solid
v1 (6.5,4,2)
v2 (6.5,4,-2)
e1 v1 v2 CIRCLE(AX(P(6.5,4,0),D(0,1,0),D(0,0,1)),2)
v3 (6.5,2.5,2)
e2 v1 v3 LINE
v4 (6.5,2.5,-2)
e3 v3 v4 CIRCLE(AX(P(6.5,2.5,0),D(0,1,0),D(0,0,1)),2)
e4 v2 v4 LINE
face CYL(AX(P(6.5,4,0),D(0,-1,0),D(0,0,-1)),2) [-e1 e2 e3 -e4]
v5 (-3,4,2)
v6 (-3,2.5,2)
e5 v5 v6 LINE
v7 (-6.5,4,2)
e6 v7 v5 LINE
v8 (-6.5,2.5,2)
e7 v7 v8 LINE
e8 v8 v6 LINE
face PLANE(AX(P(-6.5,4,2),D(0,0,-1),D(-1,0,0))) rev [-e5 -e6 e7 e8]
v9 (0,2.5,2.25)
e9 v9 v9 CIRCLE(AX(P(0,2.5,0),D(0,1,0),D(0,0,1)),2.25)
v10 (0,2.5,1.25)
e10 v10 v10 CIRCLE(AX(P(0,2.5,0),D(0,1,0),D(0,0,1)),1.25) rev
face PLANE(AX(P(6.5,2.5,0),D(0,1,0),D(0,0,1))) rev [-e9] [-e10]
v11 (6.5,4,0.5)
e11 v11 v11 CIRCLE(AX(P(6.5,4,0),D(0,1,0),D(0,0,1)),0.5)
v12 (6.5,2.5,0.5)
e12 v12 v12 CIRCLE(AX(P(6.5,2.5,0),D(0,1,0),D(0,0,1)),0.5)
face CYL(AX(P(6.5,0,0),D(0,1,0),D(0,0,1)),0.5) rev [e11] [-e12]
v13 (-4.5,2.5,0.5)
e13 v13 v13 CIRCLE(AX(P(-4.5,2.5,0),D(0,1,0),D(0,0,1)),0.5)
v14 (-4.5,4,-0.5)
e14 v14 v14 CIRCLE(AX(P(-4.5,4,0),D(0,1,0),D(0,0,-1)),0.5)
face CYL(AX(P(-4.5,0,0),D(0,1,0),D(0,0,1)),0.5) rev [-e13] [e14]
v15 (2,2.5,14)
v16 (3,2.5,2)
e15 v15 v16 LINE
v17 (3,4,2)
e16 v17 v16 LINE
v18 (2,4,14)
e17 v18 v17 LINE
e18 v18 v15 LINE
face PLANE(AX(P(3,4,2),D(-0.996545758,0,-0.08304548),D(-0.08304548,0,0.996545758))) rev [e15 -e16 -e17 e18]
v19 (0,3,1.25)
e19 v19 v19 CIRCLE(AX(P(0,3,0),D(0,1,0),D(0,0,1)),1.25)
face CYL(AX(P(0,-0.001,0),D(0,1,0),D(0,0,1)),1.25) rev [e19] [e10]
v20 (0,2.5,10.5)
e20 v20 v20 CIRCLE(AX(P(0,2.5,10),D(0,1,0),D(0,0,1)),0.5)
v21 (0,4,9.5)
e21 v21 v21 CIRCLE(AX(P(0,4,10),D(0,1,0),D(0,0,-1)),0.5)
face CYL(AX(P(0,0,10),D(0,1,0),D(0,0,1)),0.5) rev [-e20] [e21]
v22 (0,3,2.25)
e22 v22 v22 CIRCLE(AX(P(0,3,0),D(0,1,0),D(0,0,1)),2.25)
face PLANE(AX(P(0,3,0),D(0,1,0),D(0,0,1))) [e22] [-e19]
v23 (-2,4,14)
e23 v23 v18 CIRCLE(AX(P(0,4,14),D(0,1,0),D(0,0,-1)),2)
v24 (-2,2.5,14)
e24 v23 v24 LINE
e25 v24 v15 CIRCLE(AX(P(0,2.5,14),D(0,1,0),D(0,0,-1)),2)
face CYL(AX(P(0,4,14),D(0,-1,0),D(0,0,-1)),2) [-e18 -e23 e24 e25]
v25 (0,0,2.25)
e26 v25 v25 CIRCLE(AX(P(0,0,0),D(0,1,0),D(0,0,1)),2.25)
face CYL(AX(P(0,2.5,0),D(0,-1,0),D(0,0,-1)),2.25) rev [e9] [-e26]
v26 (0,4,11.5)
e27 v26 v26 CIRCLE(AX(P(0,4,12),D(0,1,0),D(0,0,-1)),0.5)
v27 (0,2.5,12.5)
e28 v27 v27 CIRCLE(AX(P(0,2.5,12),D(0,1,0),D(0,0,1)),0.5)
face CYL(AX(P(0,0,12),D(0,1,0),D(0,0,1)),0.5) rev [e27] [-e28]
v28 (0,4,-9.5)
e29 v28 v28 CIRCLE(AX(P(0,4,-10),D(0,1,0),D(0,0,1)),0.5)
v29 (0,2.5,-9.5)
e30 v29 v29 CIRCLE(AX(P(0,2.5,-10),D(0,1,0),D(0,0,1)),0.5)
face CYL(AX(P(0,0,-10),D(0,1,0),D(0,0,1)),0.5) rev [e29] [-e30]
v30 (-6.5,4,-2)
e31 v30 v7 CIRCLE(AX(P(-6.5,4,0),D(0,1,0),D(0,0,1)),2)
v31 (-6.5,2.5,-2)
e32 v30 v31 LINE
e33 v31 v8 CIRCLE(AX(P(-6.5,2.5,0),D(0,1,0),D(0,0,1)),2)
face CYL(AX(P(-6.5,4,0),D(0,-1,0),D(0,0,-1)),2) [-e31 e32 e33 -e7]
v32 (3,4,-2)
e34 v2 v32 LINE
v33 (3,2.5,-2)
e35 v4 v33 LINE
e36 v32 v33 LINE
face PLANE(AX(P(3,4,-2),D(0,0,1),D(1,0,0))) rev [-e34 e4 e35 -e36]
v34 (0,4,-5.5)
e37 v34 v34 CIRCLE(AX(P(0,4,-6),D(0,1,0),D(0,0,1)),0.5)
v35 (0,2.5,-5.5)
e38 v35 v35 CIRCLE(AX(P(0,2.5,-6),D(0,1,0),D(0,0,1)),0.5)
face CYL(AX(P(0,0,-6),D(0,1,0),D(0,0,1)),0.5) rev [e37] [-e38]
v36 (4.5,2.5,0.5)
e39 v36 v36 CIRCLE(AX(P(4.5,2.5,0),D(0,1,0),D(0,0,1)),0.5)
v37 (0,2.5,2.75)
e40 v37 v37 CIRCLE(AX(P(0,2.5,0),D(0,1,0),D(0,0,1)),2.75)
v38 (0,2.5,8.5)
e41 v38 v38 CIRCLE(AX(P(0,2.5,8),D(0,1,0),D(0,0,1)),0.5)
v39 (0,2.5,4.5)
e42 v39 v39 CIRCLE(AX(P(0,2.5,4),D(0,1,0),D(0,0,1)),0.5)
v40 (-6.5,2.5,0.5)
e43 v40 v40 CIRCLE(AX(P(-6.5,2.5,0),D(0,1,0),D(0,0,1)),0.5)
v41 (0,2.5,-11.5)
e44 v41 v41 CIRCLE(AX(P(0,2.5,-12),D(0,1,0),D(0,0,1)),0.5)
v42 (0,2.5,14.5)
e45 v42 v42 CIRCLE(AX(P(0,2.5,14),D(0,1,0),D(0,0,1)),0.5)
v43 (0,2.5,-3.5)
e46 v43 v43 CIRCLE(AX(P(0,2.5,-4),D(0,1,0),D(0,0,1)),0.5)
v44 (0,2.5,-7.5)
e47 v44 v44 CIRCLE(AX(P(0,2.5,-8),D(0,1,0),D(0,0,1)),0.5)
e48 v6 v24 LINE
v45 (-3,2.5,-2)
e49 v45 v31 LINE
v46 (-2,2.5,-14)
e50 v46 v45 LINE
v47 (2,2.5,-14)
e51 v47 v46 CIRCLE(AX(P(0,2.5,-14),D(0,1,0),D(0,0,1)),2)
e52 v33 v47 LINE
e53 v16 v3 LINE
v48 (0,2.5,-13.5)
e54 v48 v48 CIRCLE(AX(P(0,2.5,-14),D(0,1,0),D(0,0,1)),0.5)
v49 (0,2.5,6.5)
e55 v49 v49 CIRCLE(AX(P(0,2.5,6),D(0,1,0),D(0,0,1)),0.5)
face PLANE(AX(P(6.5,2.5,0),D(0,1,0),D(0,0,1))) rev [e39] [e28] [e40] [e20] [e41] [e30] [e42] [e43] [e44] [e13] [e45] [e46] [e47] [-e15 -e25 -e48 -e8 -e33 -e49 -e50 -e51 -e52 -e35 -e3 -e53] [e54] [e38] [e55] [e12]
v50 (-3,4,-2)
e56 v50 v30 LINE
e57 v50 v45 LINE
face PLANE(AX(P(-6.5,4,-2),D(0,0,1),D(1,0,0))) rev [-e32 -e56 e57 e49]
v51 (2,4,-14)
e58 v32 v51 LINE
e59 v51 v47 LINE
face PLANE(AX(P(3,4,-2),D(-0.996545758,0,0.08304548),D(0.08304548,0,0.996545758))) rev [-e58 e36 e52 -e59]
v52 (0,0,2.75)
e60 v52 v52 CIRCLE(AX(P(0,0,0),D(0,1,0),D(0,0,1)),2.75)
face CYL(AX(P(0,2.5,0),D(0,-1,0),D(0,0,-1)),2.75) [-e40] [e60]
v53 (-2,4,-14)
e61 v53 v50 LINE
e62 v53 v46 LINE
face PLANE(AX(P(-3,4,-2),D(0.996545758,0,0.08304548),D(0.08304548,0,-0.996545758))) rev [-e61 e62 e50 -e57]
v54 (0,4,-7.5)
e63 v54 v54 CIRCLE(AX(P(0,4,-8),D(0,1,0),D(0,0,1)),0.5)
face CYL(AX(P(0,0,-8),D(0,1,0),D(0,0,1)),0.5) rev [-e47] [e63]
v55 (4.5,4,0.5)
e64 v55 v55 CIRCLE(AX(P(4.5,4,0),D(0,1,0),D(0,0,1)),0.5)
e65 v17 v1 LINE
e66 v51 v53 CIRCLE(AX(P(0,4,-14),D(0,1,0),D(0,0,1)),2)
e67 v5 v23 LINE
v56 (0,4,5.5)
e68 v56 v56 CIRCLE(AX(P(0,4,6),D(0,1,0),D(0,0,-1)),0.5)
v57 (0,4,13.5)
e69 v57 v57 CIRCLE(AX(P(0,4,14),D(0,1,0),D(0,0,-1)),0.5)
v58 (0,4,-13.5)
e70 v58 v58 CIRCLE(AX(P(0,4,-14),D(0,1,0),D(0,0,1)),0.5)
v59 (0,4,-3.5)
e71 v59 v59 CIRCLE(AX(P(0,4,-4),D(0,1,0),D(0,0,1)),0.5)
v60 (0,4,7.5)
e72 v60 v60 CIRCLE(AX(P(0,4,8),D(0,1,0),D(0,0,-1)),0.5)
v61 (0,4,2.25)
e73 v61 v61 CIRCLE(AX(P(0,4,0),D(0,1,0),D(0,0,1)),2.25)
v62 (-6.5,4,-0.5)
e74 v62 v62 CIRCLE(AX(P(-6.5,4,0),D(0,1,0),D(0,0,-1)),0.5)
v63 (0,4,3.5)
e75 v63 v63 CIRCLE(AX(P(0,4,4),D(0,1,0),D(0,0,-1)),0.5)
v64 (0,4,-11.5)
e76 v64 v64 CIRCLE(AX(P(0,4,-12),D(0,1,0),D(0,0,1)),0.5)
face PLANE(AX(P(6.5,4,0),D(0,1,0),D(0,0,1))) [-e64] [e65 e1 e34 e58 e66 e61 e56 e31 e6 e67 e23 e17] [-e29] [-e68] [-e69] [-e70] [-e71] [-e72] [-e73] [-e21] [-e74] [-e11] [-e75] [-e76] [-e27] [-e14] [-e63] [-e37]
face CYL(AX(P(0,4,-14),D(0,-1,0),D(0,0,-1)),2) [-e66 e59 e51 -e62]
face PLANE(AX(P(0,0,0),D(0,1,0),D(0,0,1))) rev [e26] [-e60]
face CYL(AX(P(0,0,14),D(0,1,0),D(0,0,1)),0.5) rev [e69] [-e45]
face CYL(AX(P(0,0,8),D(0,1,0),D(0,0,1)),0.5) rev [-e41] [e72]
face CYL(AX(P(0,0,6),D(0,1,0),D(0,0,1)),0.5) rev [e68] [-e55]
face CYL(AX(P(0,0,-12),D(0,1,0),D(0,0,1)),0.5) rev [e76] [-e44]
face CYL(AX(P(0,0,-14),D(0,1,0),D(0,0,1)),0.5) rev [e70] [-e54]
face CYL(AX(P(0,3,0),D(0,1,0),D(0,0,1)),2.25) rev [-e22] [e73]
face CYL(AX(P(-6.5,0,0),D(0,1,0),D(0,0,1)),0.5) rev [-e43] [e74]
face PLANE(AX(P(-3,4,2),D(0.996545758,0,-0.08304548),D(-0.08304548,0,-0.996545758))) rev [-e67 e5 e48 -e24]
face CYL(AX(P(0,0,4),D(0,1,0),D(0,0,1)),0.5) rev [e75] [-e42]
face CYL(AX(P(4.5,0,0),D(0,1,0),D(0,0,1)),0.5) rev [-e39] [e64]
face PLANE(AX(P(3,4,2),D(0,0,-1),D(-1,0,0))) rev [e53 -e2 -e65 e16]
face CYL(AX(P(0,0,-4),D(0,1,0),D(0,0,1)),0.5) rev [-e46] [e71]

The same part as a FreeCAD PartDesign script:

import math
import FreeCAD as App
import Part
import Sketcher
from FreeCAD import Vector
Q = App.Units.Quantity

doc = App.newDocument("Part")
body = doc.addObject("PartDesign::Body", "Body")

# Sketch on XZ plane
sketch1 = doc.addObject("Sketcher::SketchObject", "Sketch")
body.addObject(sketch1)
sketch1.AttachmentSupport = (doc.XZ_Plane, [""])
sketch1.MapMode = "FlatFace"
sketch1.addGeometry(Part.Circle(Vector(0, 0, 0), Vector(0, 0, 1), 2.8), False)
sketch1.addGeometry(Part.Circle(Vector(0, 0, 0), Vector(0, 0, 1), 2.2), False)
sketch1.addConstraint(Sketcher.Constraint("Coincident", 0, 3, -1, 1))
sketch1.addConstraint(Sketcher.Constraint("Coincident", 1, 3, -1, 1))
sketch1.addConstraint(Sketcher.Constraint("Diameter", 0, Q("5.5 mm")))
sketch1.addConstraint(Sketcher.Constraint("Diameter", 1, Q("4.5 mm")))
pad1 = doc.addObject("PartDesign::Pad", "Pad")
body.addObject(pad1)
pad1.Profile = sketch1
pad1.Length = 2.5
pad1.Reversed = True

# Sketch on XZ plane
sketch2 = doc.addObject("Sketcher::SketchObject", "Sketch001")
body.addObject(sketch2)
sketch2.AttachmentSupport = (doc.XZ_Plane, [""])
sketch2.MapMode = "FlatFace"
sketch2.AttachmentOffset = App.Placement(Vector(0, 0, -2.5), App.Rotation())
sketch2.addGeometry(Part.LineSegment(Vector(-3, -2, 0), Vector(-6.5, -2, 0)), False)
sketch2.addGeometry(Part.ArcOfCircle(Part.Circle(Vector(-6.5, 0, 0), Vector(0, 0, 1), 2), math.radians(90), math.radians(270)), False)
sketch2.addGeometry(Part.LineSegment(Vector(-6.5, 2, 0), Vector(-3, 2, 0)), False)
sketch2.addGeometry(Part.LineSegment(Vector(-3, 2, 0), Vector(-2, 14, 0)), False)
sketch2.addGeometry(Part.ArcOfCircle(Part.Circle(Vector(0, 14, 0), Vector(0, 0, 1), 2), math.radians(0), math.radians(180)), False)
sketch2.addGeometry(Part.LineSegment(Vector(2, 14, 0), Vector(3, 2, 0)), False)
sketch2.addGeometry(Part.LineSegment(Vector(3, 2, 0), Vector(6.5, 2, 0)), False)
sketch2.addGeometry(Part.ArcOfCircle(Part.Circle(Vector(6.5, 0, 0), Vector(0, 0, 1), 2), math.radians(-90), math.radians(90)), False)
sketch2.addGeometry(Part.LineSegment(Vector(6.5, -2, 0), Vector(3, -2, 0)), False)
sketch2.addGeometry(Part.LineSegment(Vector(3, -2, 0), Vector(2, -14, 0)), False)
sketch2.addGeometry(Part.ArcOfCircle(Part.Circle(Vector(0, -14, 0), Vector(0, 0, 1), 2), math.radians(180), math.radians(360)), False)
sketch2.addGeometry(Part.LineSegment(Vector(-2, -14, 0), Vector(-3, -2, 0)), False)
sketch2.addConstraint(Sketcher.Constraint("Tangent", 0, 2, 1, 2))
sketch2.addConstraint(Sketcher.Constraint("Tangent", 1, 1, 2, 1))
sketch2.addConstraint(Sketcher.Constraint("Coincident", 2, 2, 3, 1))
sketch2.addConstraint(Sketcher.Constraint("Coincident", 3, 2, 4, 2))
sketch2.addConstraint(Sketcher.Constraint("Coincident", 4, 1, 5, 1))
sketch2.addConstraint(Sketcher.Constraint("Coincident", 5, 2, 6, 1))
sketch2.addConstraint(Sketcher.Constraint("Tangent", 6, 2, 7, 2))
sketch2.addConstraint(Sketcher.Constraint("Tangent", 7, 1, 8, 1))
sketch2.addConstraint(Sketcher.Constraint("Coincident", 8, 2, 9, 1))
sketch2.addConstraint(Sketcher.Constraint("Coincident", 9, 2, 10, 2))
sketch2.addConstraint(Sketcher.Constraint("Coincident", 10, 1, 11, 1))
sketch2.addConstraint(Sketcher.Constraint("Coincident", 11, 2, 0, 1))
sketch2.addConstraint(Sketcher.Constraint("Horizontal", 0))
sketch2.addConstraint(Sketcher.Constraint("Horizontal", 2))
sketch2.addConstraint(Sketcher.Constraint("Horizontal", 6))
sketch2.addConstraint(Sketcher.Constraint("Horizontal", 8))
sketch2.addConstraint(Sketcher.Constraint("Equal", 1, 4))
sketch2.addConstraint(Sketcher.Constraint("Equal", 4, 7))
sketch2.addConstraint(Sketcher.Constraint("Equal", 7, 10))
sketch2.addConstraint(Sketcher.Constraint("Symmetric", 1, 3, 7, 3, -1, 1))
sketch2.addConstraint(Sketcher.Constraint("Symmetric", 4, 3, 10, 3, -1, 1))
sketch2.addConstraint(Sketcher.Constraint("Symmetric", 3, 2, 4, 1, -2))
sketch2.addConstraint(Sketcher.Constraint("Symmetric", 2, 2, 5, 2, -2))
sketch2.addConstraint(Sketcher.Constraint("Parallel", 3, 9))
sketch2.addConstraint(Sketcher.Constraint("Parallel", 5, 11))
sketch2.addConstraint(Sketcher.Constraint("Horizontal", 4, 3, 3, 2))
sketch2.addConstraint(Sketcher.Constraint("Horizontal", 10, 3, 9, 2))
sketch2.addConstraint(Sketcher.Constraint("Horizontal", 9, 2, 10, 1))
sketch2.addConstraint(Sketcher.Constraint("Radius", 1, Q("2 mm")))
sketch2.addConstraint(Sketcher.Constraint("DistanceX", 0, 2, 0, 1, Q("3.5 mm")))
sketch2.addConstraint(Sketcher.Constraint("DistanceY", -1, 1, 4, 3, Q("14 mm")))
sketch2.addConstraint(Sketcher.Constraint("DistanceX", 2, 2, -1, 1, Q("3 mm")))
pad2 = doc.addObject("PartDesign::Pad", "Pad001")
body.addObject(pad2)
pad2.Profile = sketch2
pad2.Length = 1.5
pad2.Reversed = True

# Sketch on XZ plane
sketch3 = doc.addObject("Sketcher::SketchObject", "Sketch002")
body.addObject(sketch3)
sketch3.AttachmentSupport = (doc.XZ_Plane, [""])
sketch3.MapMode = "FlatFace"
sketch3.AttachmentOffset = App.Placement(Vector(0, 0, -4), App.Rotation())
sketch3.addGeometry(Part.Circle(Vector(0, 0, 0), Vector(0, 0, 1), 2.2), False)
sketch3.addConstraint(Sketcher.Constraint("Coincident", 0, 3, -1, 1))
sketch3.addConstraint(Sketcher.Constraint("Diameter", 0, Q("4.5 mm")))
pocket1 = doc.addObject("PartDesign::Pocket", "Pocket")
body.addObject(pocket1)
pocket1.Profile = sketch3
pocket1.Length = 1
pocket1.Reversed = True

# Sketch on XZ plane
sketch4 = doc.addObject("Sketcher::SketchObject", "Sketch003")
body.addObject(sketch4)
sketch4.AttachmentSupport = (doc.XZ_Plane, [""])
sketch4.MapMode = "FlatFace"
sketch4.AttachmentOffset = App.Placement(Vector(0, 0, -3), App.Rotation())
sketch4.addGeometry(Part.Circle(Vector(0, 0, 0), Vector(0, 0, 1), 1.2), False)
sketch4.addConstraint(Sketcher.Constraint("Coincident", 0, 3, -1, 1))
sketch4.addConstraint(Sketcher.Constraint("Diameter", 0, Q("2.5 mm")))
pocket2 = doc.addObject("PartDesign::Pocket", "Pocket001")
body.addObject(pocket2)
pocket2.Profile = sketch4
pocket2.Type = "UpToFirst"
pocket2.Reversed = True

# Sketch on XZ plane
sketch5 = doc.addObject("Sketcher::SketchObject", "Sketch004")
body.addObject(sketch5)
sketch5.AttachmentSupport = (doc.XZ_Plane, [""])
sketch5.MapMode = "FlatFace"
sketch5.AttachmentOffset = App.Placement(Vector(0, 0, -4), App.Rotation())
sketch5.addGeometry(Part.Circle(Vector(4.5, 0, 0), Vector(0, 0, 1), 0.5), False)
sketch5.addGeometry(Part.Circle(Vector(6.5, 0, 0), Vector(0, 0, 1), 0.5), False)
sketch5.addGeometry(Part.Circle(Vector(-4.5, 0, 0), Vector(0, 0, 1), 0.5), False)
sketch5.addGeometry(Part.Circle(Vector(-6.5, 0, 0), Vector(0, 0, 1), 0.5), False)
sketch5.addGeometry(Part.Circle(Vector(0, -14, 0), Vector(0, 0, 1), 0.5), False)
sketch5.addGeometry(Part.Circle(Vector(0, -12, 0), Vector(0, 0, 1), 0.5), False)
sketch5.addGeometry(Part.Circle(Vector(0, -10, 0), Vector(0, 0, 1), 0.5), False)
sketch5.addGeometry(Part.Circle(Vector(0, -8, 0), Vector(0, 0, 1), 0.5), False)
sketch5.addGeometry(Part.Circle(Vector(0, -6, 0), Vector(0, 0, 1), 0.5), False)
sketch5.addGeometry(Part.Circle(Vector(0, -4, 0), Vector(0, 0, 1), 0.5), False)
sketch5.addGeometry(Part.Circle(Vector(0, 4, 0), Vector(0, 0, 1), 0.5), False)
sketch5.addGeometry(Part.Circle(Vector(0, 6, 0), Vector(0, 0, 1), 0.5), False)
sketch5.addGeometry(Part.Circle(Vector(0, 8, 0), Vector(0, 0, 1), 0.5), False)
sketch5.addGeometry(Part.Circle(Vector(0, 10, 0), Vector(0, 0, 1), 0.5), False)
sketch5.addGeometry(Part.Circle(Vector(0, 12, 0), Vector(0, 0, 1), 0.5), False)
sketch5.addGeometry(Part.Circle(Vector(0, 14, 0), Vector(0, 0, 1), 0.5), False)
sketch5.addConstraint(Sketcher.Constraint("Equal", 0, 1))
sketch5.addConstraint(Sketcher.Constraint("Equal", 1, 2))
sketch5.addConstraint(Sketcher.Constraint("Equal", 2, 3))
sketch5.addConstraint(Sketcher.Constraint("Equal", 3, 4))
sketch5.addConstraint(Sketcher.Constraint("Equal", 4, 5))
sketch5.addConstraint(Sketcher.Constraint("Equal", 5, 6))
sketch5.addConstraint(Sketcher.Constraint("Equal", 6, 7))
sketch5.addConstraint(Sketcher.Constraint("Equal", 7, 8))
sketch5.addConstraint(Sketcher.Constraint("Equal", 8, 9))
sketch5.addConstraint(Sketcher.Constraint("Equal", 9, 10))
sketch5.addConstraint(Sketcher.Constraint("Equal", 10, 11))
sketch5.addConstraint(Sketcher.Constraint("Equal", 11, 12))
sketch5.addConstraint(Sketcher.Constraint("Equal", 12, 13))
sketch5.addConstraint(Sketcher.Constraint("Equal", 13, 14))
sketch5.addConstraint(Sketcher.Constraint("Equal", 14, 15))
sketch5.addConstraint(Sketcher.Constraint("Symmetric", 0, 3, 2, 3, -1, 1))
sketch5.addConstraint(Sketcher.Constraint("Symmetric", 1, 3, 3, 3, -1, 1))
sketch5.addConstraint(Sketcher.Constraint("Symmetric", 9, 3, 10, 3, -1, 1))
sketch5.addConstraint(Sketcher.Constraint("Symmetric", 8, 3, 11, 3, -1, 1))
sketch5.addConstraint(Sketcher.Constraint("Symmetric", 7, 3, 12, 3, -1, 1))
sketch5.addConstraint(Sketcher.Constraint("Symmetric", 6, 3, 13, 3, -1, 1))
sketch5.addConstraint(Sketcher.Constraint("Symmetric", 5, 3, 14, 3, -1, 1))
sketch5.addConstraint(Sketcher.Constraint("Symmetric", 4, 3, 15, 3, -1, 1))
sketch5.addConstraint(Sketcher.Constraint("PointOnObject", 0, 3, -1))
sketch5.addConstraint(Sketcher.Constraint("PointOnObject", 1, 3, -1))
sketch5.addConstraint(Sketcher.Constraint("PointOnObject", 4, 3, -2))
sketch5.addConstraint(Sketcher.Constraint("PointOnObject", 5, 3, -2))
sketch5.addConstraint(Sketcher.Constraint("PointOnObject", 6, 3, -2))
sketch5.addConstraint(Sketcher.Constraint("PointOnObject", 7, 3, -2))
sketch5.addConstraint(Sketcher.Constraint("PointOnObject", 8, 3, -2))
sketch5.addConstraint(Sketcher.Constraint("PointOnObject", 9, 3, -2))
sketch5.addConstraint(Sketcher.Constraint("Diameter", 0, Q("1 mm")))
sketch5.addConstraint(Sketcher.Constraint("DistanceY", 4, 3, -1, 1, Q("14 mm")))
sketch5.addConstraint(Sketcher.Constraint("DistanceY", 5, 3, -1, 1, Q("12 mm")))
sketch5.addConstraint(Sketcher.Constraint("DistanceY", 6, 3, -1, 1, Q("10 mm")))
sketch5.addConstraint(Sketcher.Constraint("DistanceY", 7, 3, -1, 1, Q("8 mm")))
sketch5.addConstraint(Sketcher.Constraint("DistanceY", 8, 3, -1, 1, Q("6 mm")))
sketch5.addConstraint(Sketcher.Constraint("DistanceY", 9, 3, -1, 1, Q("4 mm")))
sketch5.addConstraint(Sketcher.Constraint("DistanceX", 0, 3, 1, 3, Q("2 mm")))
sketch5.addConstraint(Sketcher.Constraint("DistanceX", 2, 3, 0, 3, Q("9 mm")))
pocket3 = doc.addObject("PartDesign::Pocket", "Pocket002")
body.addObject(pocket3)
pocket3.Profile = sketch5
pocket3.Type = "ThroughAll"
pocket3.Reversed = True

doc.recompute()
